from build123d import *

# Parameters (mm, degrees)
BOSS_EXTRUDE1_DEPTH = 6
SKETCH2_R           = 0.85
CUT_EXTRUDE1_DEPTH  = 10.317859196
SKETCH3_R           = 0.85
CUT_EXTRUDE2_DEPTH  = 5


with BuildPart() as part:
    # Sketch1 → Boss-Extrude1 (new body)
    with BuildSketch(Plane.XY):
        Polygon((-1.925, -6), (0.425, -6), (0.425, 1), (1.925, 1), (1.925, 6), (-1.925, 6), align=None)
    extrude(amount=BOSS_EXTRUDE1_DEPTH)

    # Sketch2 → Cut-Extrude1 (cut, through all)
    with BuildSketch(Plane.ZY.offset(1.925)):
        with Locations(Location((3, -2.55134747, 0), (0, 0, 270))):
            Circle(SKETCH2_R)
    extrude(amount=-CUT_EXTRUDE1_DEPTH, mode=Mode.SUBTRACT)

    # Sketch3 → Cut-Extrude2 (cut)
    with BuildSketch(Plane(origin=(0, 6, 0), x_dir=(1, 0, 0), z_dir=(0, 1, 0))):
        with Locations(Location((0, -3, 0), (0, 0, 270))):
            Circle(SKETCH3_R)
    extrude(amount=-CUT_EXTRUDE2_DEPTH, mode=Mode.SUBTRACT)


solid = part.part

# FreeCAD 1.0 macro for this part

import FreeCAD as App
import Part
import Sketcher
from FreeCAD import Vector
Q = App.Units.Quantity


def add_polygon(sketch, points):
    """Adds a closed chain of lines whose ends are joined by coincident constraints."""
    first, n = sketch.GeometryCount, len(points)
    for a, b in zip(points, points[1:] + points[:1]):
        sketch.addGeometry(Part.LineSegment(App.Vector(*a, 0), App.Vector(*b, 0)), False)
    for i in range(n):
        sketch.addConstraint(Sketcher.Constraint("Coincident", first + i, 2, first + (i + 1) % n, 1))

doc = App.newDocument("Part")
params = doc.addObject("Spreadsheet::Sheet", "Params")
for row, (alias, value) in enumerate([
    ("sketch1_height", "7 mm"),
    ("sketch1_height2", "5 mm"),
    ("sketch1_width", "1.5 mm"),
    ("sketch1_width2", "2.35 mm"),
    ("pad1_length", "6 mm"),
    ("sketch2_diameter", "1.7 mm"),
    ("sketch3_diameter", "1.7 mm"),
    ("pocket2_length", "5 mm"),
], start=1):
    params.set(f"A{row}", alias)
    params.set(f"B{row}", "=" + value)
    params.setAlias(f"B{row}", alias)

body = doc.addObject("PartDesign::Body", "Body")

# Sketch on XY plane
sketch1 = body.newObject("Sketcher::SketchObject", "Sketch")
sketch1.AttachmentSupport = (doc.getObject("XY_Plane"), [""])
sketch1.MapMode = "FlatFace"
add_polygon(sketch1, [(-1.9, -6), (0.4, -6), (0.4, 1), (1.9, 1), (1.9, 6), (-1.9, 6)])  # lines 0-5
sketch1.addConstraint([
    Sketcher.Constraint("Horizontal", 0),
    Sketcher.Constraint("Vertical", 1),
    Sketcher.Constraint("Horizontal", 2),
    Sketcher.Constraint("Vertical", 3),
    Sketcher.Constraint("Horizontal", 4),
    Sketcher.Constraint("Vertical", 5),
    Sketcher.Constraint("Symmetric", 3, 2, 5, 2, -1, 1),
    Sketcher.Constraint("DistanceY", 1, 1, 1, 2, Q("7 mm")),
    Sketcher.Constraint("DistanceY", 3, 1, 3, 2, Q("5 mm")),
    Sketcher.Constraint("DistanceX", 2, 1, 2, 2, Q("1.5 mm")),
    Sketcher.Constraint("DistanceX", 0, 1, 0, 2, Q("2.35 mm")),
])
sketch1.setExpression("Constraints[13]", "Params.sketch1_height")
sketch1.setExpression("Constraints[14]", "Params.sketch1_height2")
sketch1.setExpression("Constraints[15]", "Params.sketch1_width")
sketch1.setExpression("Constraints[16]", "Params.sketch1_width2")
pad1 = body.newObject("PartDesign::Pad", "Pad")
pad1.Profile = sketch1
pad1.setExpression("Length", "Params.pad1_length")

# Sketch on YZ plane
sketch2 = body.newObject("Sketcher::SketchObject", "Sketch001")
sketch2.AttachmentSupport = (doc.getObject("YZ_Plane"), [""])
sketch2.MapMode = "FlatFace"
sketch2.AttachmentOffset = App.Placement(Vector(0, 0, -1.925), App.Rotation())
sketch2.addGeometry(Part.Circle(Vector(-2.6, 3, 0), Vector(0, 0, 1), 0.8), False)
sketch2.addConstraint([
    Sketcher.Constraint("Diameter", 0, Q("1.7 mm")),
    Sketcher.Constraint("DistanceY", -1, 1, 0, 3, Q("3 mm")),
    Sketcher.Constraint("DistanceX", 0, 3, -1, 1, Q("2.551347 mm")),
])
sketch2.setExpression("Constraints[0]", "Params.sketch2_diameter")
pocket1 = body.newObject("PartDesign::Pocket", "Pocket")
pocket1.Profile = sketch2
pocket1.Type = "ThroughAll"
pocket1.Reversed = True

# Sketch on XZ plane
sketch3 = body.newObject("Sketcher::SketchObject", "Sketch002")
sketch3.AttachmentSupport = (doc.getObject("XZ_Plane"), [""])
sketch3.MapMode = "FlatFace"
sketch3.AttachmentOffset = App.Placement(Vector(0, 0, -6), App.Rotation())
sketch3.addGeometry(Part.Circle(Vector(0, 3, 0), Vector(0, 0, 1), 0.8), False)
sketch3.addConstraint([
    Sketcher.Constraint("PointOnObject", 0, 3, -2),
    Sketcher.Constraint("Diameter", 0, Q("1.7 mm")),
    Sketcher.Constraint("DistanceY", -1, 1, 0, 3, Q("3 mm")),
])
sketch3.setExpression("Constraints[1]", "Params.sketch3_diameter")
pocket2 = body.newObject("PartDesign::Pocket", "Pocket001")
pocket2.Profile = sketch3
pocket2.setExpression("Length", "Params.pocket2_length")
pocket2.Reversed = True

doc.recompute()
